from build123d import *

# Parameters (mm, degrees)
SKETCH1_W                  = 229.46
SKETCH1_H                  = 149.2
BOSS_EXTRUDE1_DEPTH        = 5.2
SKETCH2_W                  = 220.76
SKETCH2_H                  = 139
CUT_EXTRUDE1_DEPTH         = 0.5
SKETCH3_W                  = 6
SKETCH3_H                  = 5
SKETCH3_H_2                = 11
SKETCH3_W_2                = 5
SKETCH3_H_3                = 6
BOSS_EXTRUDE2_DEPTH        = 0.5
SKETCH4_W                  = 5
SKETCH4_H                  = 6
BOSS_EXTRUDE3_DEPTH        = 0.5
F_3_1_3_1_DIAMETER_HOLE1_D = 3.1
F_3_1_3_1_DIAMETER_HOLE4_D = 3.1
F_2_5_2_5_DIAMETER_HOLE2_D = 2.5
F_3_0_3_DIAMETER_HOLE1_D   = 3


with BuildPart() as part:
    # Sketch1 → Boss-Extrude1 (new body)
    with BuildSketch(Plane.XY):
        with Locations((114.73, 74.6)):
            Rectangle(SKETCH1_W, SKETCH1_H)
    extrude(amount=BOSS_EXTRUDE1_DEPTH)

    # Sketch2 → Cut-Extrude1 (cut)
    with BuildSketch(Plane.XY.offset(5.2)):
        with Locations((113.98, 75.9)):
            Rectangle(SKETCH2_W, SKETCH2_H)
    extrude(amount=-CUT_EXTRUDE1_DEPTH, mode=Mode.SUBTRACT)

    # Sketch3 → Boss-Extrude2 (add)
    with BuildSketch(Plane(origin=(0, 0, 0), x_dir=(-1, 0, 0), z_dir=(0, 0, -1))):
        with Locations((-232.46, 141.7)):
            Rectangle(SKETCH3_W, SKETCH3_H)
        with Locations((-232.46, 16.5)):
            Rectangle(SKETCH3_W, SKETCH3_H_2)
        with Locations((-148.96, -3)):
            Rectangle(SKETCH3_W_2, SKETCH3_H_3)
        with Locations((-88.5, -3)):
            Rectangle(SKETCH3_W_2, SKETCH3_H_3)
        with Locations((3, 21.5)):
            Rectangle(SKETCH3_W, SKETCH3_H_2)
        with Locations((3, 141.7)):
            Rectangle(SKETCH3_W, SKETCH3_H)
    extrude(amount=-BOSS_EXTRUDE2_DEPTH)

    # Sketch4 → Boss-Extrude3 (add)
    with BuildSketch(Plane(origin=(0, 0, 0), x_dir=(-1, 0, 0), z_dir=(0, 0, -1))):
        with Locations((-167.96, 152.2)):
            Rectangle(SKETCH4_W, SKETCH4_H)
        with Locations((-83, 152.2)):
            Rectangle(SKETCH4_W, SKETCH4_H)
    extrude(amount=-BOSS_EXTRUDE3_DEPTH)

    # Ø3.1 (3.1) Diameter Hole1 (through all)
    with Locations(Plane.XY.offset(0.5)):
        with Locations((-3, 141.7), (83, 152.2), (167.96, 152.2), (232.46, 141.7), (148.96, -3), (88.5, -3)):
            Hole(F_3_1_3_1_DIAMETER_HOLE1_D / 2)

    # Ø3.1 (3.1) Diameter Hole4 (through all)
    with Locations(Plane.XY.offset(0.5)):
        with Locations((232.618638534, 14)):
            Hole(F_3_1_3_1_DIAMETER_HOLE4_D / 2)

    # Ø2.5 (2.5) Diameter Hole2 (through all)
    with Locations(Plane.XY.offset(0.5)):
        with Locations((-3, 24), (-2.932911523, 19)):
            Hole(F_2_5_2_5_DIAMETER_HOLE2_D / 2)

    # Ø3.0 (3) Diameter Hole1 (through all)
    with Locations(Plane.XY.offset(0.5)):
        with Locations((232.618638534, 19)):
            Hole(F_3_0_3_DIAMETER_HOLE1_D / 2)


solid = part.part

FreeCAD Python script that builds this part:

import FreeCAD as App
import Part
import Sketcher
from FreeCAD import Vector

doc = App.newDocument("Part")
body = doc.addObject("PartDesign::Body", "Body")

# Sketch on XY plane
sketch1 = body.newObject("Sketcher::SketchObject", "Sketch")
sketch1.AttachmentSupport = (doc.getObject("XY_Plane"), [""])
sketch1.MapMode = "FlatFace"
sketch1.addGeometry([
    Part.LineSegment(Vector(0, 149, 0), Vector(0, 0, 0)),
    Part.LineSegment(Vector(0, 0, 0), Vector(229, 0, 0)),
    Part.LineSegment(Vector(229, 0, 0), Vector(229, 149, 0)),
    Part.LineSegment(Vector(229, 149, 0), Vector(0, 149, 0)),
], False)
sketch1.addConstraint([
    Sketcher.Constraint("Coincident", 0, 2, 1, 1),
    Sketcher.Constraint("Coincident", 1, 2, 2, 1),
    Sketcher.Constraint("Coincident", 2, 2, 3, 1),
    Sketcher.Constraint("Coincident", 3, 2, 0, 1),
    Sketcher.Constraint("Vertical", 0),
    Sketcher.Constraint("Horizontal", 1),
    Sketcher.Constraint("Vertical", 2),
    Sketcher.Constraint("Horizontal", 3),
    Sketcher.Constraint("Coincident", 0, 2, -1, 1),
    Sketcher.Constraint("DistanceY", 0, 2, 0, 1, 149.2),
    Sketcher.Constraint("DistanceX", 1, 1, 1, 2, 229.46),
])
pad1 = body.newObject("PartDesign::Pad", "Pad")
pad1.Profile = sketch1
pad1.Length = 5.2

# Sketch on XY plane
sketch2 = body.newObject("Sketcher::SketchObject", "Sketch001")
sketch2.AttachmentSupport = (doc.getObject("XY_Plane"), [""])
sketch2.MapMode = "FlatFace"
sketch2.AttachmentOffset = App.Placement(Vector(0, 0, 5.2), App.Rotation())
sketch2.addGeometry([
    Part.LineSegment(Vector(4, 145, 0), Vector(4, 6, 0)),
    Part.LineSegment(Vector(4, 6, 0), Vector(224, 6, 0)),
    Part.LineSegment(Vector(224, 6, 0), Vector(224, 145, 0)),
    Part.LineSegment(Vector(224, 145, 0), Vector(4, 145, 0)),
], False)
sketch2.addConstraint([
    Sketcher.Constraint("Coincident", 0, 2, 1, 1),
    Sketcher.Constraint("Coincident", 1, 2, 2, 1),
    Sketcher.Constraint("Coincident", 2, 2, 3, 1),
    Sketcher.Constraint("Coincident", 3, 2, 0, 1),
    Sketcher.Constraint("Vertical", 0),
    Sketcher.Constraint("Horizontal", 1),
    Sketcher.Constraint("Vertical", 2),
    Sketcher.Constraint("Horizontal", 3),
    Sketcher.Constraint("DistanceY", 0, 2, 0, 1, 139.0),
    Sketcher.Constraint("DistanceX", 1, 1, 1, 2, 220.76),
    Sketcher.Constraint("DistanceX", -1, 1, 0, 2, 3.6),
    Sketcher.Constraint("DistanceY", -1, 1, 0, 2, 6.4),
])
pocket1 = body.newObject("PartDesign::Pocket", "Pocket")
pocket1.Profile = sketch2
pocket1.Length = 0.5

# Sketch on XY plane
sketch3 = body.newObject("Sketcher::SketchObject", "Sketch002")
sketch3.AttachmentSupport = (doc.getObject("XY_Plane"), [""])
sketch3.MapMode = "FlatFace"
sketch3.addGeometry([
    Part.LineSegment(Vector(235, 144, 0), Vector(235, 139, 0)),  # 0
    Part.LineSegment(Vector(235, 139, 0), Vector(229, 139, 0)),  # 1
    Part.LineSegment(Vector(229, 139, 0), Vector(229, 144, 0)),  # 2
    Part.LineSegment(Vector(229, 144, 0), Vector(235, 144, 0)),  # 3
    Part.LineSegment(Vector(235, 22, 0), Vector(235, 11, 0)),  # 4
    Part.LineSegment(Vector(235, 11, 0), Vector(229, 11, 0)),  # 5
    Part.LineSegment(Vector(229, 11, 0), Vector(229, 22, 0)),  # 6
    Part.LineSegment(Vector(229, 22, 0), Vector(235, 22, 0)),  # 7
    Part.LineSegment(Vector(151, 0, 0), Vector(151, -6, 0)),  # 8
    Part.LineSegment(Vector(151, -6, 0), Vector(146, -6, 0)),  # 9
    Part.LineSegment(Vector(146, -6, 0), Vector(146, 0, 0)),  # 10
    Part.LineSegment(Vector(146, 0, 0), Vector(151, 0, 0)),  # 11
    Part.LineSegment(Vector(91, 0, 0), Vector(91, -6, 0)),  # 12
    Part.LineSegment(Vector(91, -6, 0), Vector(86, -6, 0)),  # 13
    Part.LineSegment(Vector(86, -6, 0), Vector(86, 0, 0)),  # 14
    Part.LineSegment(Vector(86, 0, 0), Vector(91, 0, 0)),  # 15
    Part.LineSegment(Vector(0, 27, 0), Vector(0, 16, 0)),  # 16
    Part.LineSegment(Vector(0, 16, 0), Vector(-6, 16, 0)),  # 17
    Part.LineSegment(Vector(-6, 16, 0), Vector(-6, 27, 0)),  # 18
    Part.LineSegment(Vector(-6, 27, 0), Vector(0, 27, 0)),  # 19
    Part.LineSegment(Vector(0, 144, 0), Vector(0, 139, 0)),  # 20
    Part.LineSegment(Vector(0, 139, 0), Vector(-6, 139, 0)),  # 21
    Part.LineSegment(Vector(-6, 139, 0), Vector(-6, 144, 0)),  # 22
    Part.LineSegment(Vector(-6, 144, 0), Vector(0, 144, 0)),  # 23
], False)
sketch3.addConstraint([
    Sketcher.Constraint("Coincident", 0, 2, 1, 1),
    Sketcher.Constraint("Coincident", 1, 2, 2, 1),
    Sketcher.Constraint("Coincident", 2, 2, 3, 1),
    Sketcher.Constraint("Coincident", 3, 2, 0, 1),
    Sketcher.Constraint("Coincident", 4, 2, 5, 1),
    Sketcher.Constraint("Coincident", 5, 2, 6, 1),
    Sketcher.Constraint("Coincident", 6, 2, 7, 1),
    Sketcher.Constraint("Coincident", 7, 2, 4, 1),
    Sketcher.Constraint("Coincident", 8, 2, 9, 1),
    Sketcher.Constraint("Coincident", 9, 2, 10, 1),
    Sketcher.Constraint("Coincident", 10, 2, 11, 1),
    Sketcher.Constraint("Coincident", 11, 2, 8, 1),
    Sketcher.Constraint("Coincident", 12, 2, 13, 1),
    Sketcher.Constraint("Coincident", 13, 2, 14, 1),
    Sketcher.Constraint("Coincident", 14, 2, 15, 1),
    Sketcher.Constraint("Coincident", 15, 2, 12, 1),
    Sketcher.Constraint("Coincident", 16, 2, 17, 1),
    Sketcher.Constraint("Coincident", 17, 2, 18, 1),
    Sketcher.Constraint("Coincident", 18, 2, 19, 1),
    Sketcher.Constraint("Coincident", 19, 2, 16, 1),
    Sketcher.Constraint("Coincident", 20, 2, 21, 1),
    Sketcher.Constraint("Coincident", 21, 2, 22, 1),
    Sketcher.Constraint("Coincident", 22, 2, 23, 1),
    Sketcher.Constraint("Coincident", 23, 2, 20, 1),
    Sketcher.Constraint("Vertical", 0),
    Sketcher.Constraint("Horizontal", 1),
    Sketcher.Constraint("Vertical", 2),
    Sketcher.Constraint("Horizontal", 3),
    Sketcher.Constraint("Vertical", 4),
    Sketcher.Constraint("Horizontal", 5),
    Sketcher.Constraint("Vertical", 6),
    Sketcher.Constraint("Horizontal", 7),
    Sketcher.Constraint("Vertical", 8),
    Sketcher.Constraint("Horizontal", 9),
    Sketcher.Constraint("Vertical", 10),
    Sketcher.Constraint("Horizontal", 11),
    Sketcher.Constraint("Vertical", 12),
    Sketcher.Constraint("Horizontal", 13),
    Sketcher.Constraint("Vertical", 14),
    Sketcher.Constraint("Horizontal", 15),
    Sketcher.Constraint("Vertical", 16),
    Sketcher.Constraint("Horizontal", 17),
    Sketcher.Constraint("Vertical", 18),
    Sketcher.Constraint("Horizontal", 19),
    Sketcher.Constraint("Vertical", 20),
    Sketcher.Constraint("Horizontal", 21),
    Sketcher.Constraint("Vertical", 22),
    Sketcher.Constraint("Horizontal", 23),
    Sketcher.Constraint("PointOnObject", 10, 2, -1),
    Sketcher.Constraint("PointOnObject", 14, 2, -1),
    Sketcher.Constraint("PointOnObject", 16, 2, -2),
    Sketcher.Constraint("PointOnObject", 20, 2, -2),
    Sketcher.Constraint("Horizontal", 9, 2, 12, 2),
    Sketcher.Constraint("Horizontal", 1, 2, 20, 2),
    Sketcher.Constraint("Horizontal", 3, 2, 22, 2),
    Sketcher.Constraint("Vertical", 3, 2, 4, 2),
    Sketcher.Constraint("Vertical", 2, 2, 5, 2),
    Sketcher.Constraint("Vertical", 18, 2, 21, 2),
    Sketcher.Constraint("Equal", 11, 13),
    Sketcher.Constraint("Equal", 7, 17),
    Sketcher.Constraint("Equal", 15, 0),
    Sketcher.Constraint("Equal", 23, 8),
    Sketcher.Constraint("Equal", 6, 16),
    Sketcher.Constraint("DistanceX", 1, 2, 1, 1, 6.0),
    Sketcher.Constraint("DistanceX", 9, 2, 9, 1, 5.0),
    Sketcher.Constraint("DistanceY", 4, 2, 4, 1, 11.0),
    Sketcher.Constraint("DistanceY", -1, 1, 4, 2, 11.0),
    Sketcher.Constraint("DistanceX", -1, 1, 12, 2, 91.0),
    Sketcher.Constraint("DistanceY", -1, 1, 16, 2, 16.0),
    Sketcher.Constraint("DistanceX", 8, 2, 5, 2, 78.0),
    Sketcher.Constraint("DistanceY", -1, 1, 0, 2, 139.2),
    Sketcher.Constraint("DistanceX", -1, 1, 0, 2, 235.46),
])
pad2 = body.newObject("PartDesign::Pad", "Pad001")
pad2.Profile = sketch3
pad2.Length = 0.5

# Sketch on XY plane
sketch4 = body.newObject("Sketcher::SketchObject", "Sketch003")
sketch4.AttachmentSupport = (doc.getObject("XY_Plane"), [""])
sketch4.MapMode = "FlatFace"
sketch4.addGeometry([
    Part.LineSegment(Vector(170, 155, 0), Vector(170, 149, 0)),  # 0
    Part.LineSegment(Vector(170, 149, 0), Vector(165, 149, 0)),  # 1
    Part.LineSegment(Vector(165, 149, 0), Vector(165, 155, 0)),  # 2
    Part.LineSegment(Vector(165, 155, 0), Vector(170, 155, 0)),  # 3
    Part.LineSegment(Vector(86, 155, 0), Vector(86, 149, 0)),  # 4
    Part.LineSegment(Vector(86, 149, 0), Vector(80, 149, 0)),  # 5
    Part.LineSegment(Vector(80, 149, 0), Vector(80, 155, 0)),  # 6
    Part.LineSegment(Vector(80, 155, 0), Vector(86, 155, 0)),  # 7
], False)
sketch4.addConstraint([
    Sketcher.Constraint("Coincident", 0, 2, 1, 1),
    Sketcher.Constraint("Coincident", 1, 2, 2, 1),
    Sketcher.Constraint("Coincident", 2, 2, 3, 1),
    Sketcher.Constraint("Coincident", 3, 2, 0, 1),
    Sketcher.Constraint("Coincident", 4, 2, 5, 1),
    Sketcher.Constraint("Coincident", 5, 2, 6, 1),
    Sketcher.Constraint("Coincident", 6, 2, 7, 1),
    Sketcher.Constraint("Coincident", 7, 2, 4, 1),
    Sketcher.Constraint("Vertical", 0),
    Sketcher.Constraint("Horizontal", 1),
    Sketcher.Constraint("Vertical", 2),
    Sketcher.Constraint("Horizontal", 3),
    Sketcher.Constraint("Vertical", 4),
    Sketcher.Constraint("Horizontal", 5),
    Sketcher.Constraint("Vertical", 6),
    Sketcher.Constraint("Horizontal", 7),
    Sketcher.Constraint("Horizontal", 1, 2, 4, 2),
    Sketcher.Constraint("Horizontal", 3, 2, 6, 2),
    Sketcher.Constraint("Equal", 3, 5),
    Sketcher.Constraint("DistanceX", 1, 2, 1, 1, 5.0),
    Sketcher.Constraint("DistanceY", 0, 2, 0, 1, 6.0),
    Sketcher.Constraint("DistanceY", -1, 1, 0, 2, 149.2),
    Sketcher.Constraint("DistanceX", -1, 1, 4, 2, 85.5),
    Sketcher.Constraint("DistanceX", -1, 1, 0, 2, 170.46),
])
pad3 = body.newObject("PartDesign::Pad", "Pad002")
pad3.Profile = sketch4
pad3.Length = 0.5

# Sketch on XY plane
sketch5 = body.newObject("Sketcher::SketchObject", "Sketch004")
sketch5.AttachmentSupport = (doc.getObject("XY_Plane"), [""])
sketch5.MapMode = "FlatFace"
sketch5.AttachmentOffset = App.Placement(Vector(0, 0, 0.5), App.Rotation())
sketch5.addGeometry([
    Part.Circle(Vector(-3, 141.7, 0), Vector(0, 0, 1), 1.6),  # 0
    Part.Circle(Vector(83, 152.2, 0), Vector(0, 0, 1), 1.6),  # 1
    Part.Circle(Vector(168, 152.2, 0), Vector(0, 0, 1), 1.6),  # 2
    Part.Circle(Vector(232.5, 141.7, 0), Vector(0, 0, 1), 1.6),  # 3
    Part.Circle(Vector(149, -3, 0), Vector(0, 0, 1), 1.6),  # 4
    Part.Circle(Vector(88.5, -3, 0), Vector(0, 0, 1), 1.6),  # 5
], False)
sketch5.addConstraint([
    Sketcher.Constraint("Equal", 0, 1),
    Sketcher.Constraint("Equal", 1, 2),
    Sketcher.Constraint("Equal", 2, 3),
    Sketcher.Constraint("Equal", 3, 4),
    Sketcher.Constraint("Equal", 4, 5),
    Sketcher.Constraint("Horizontal", 1, 3, 2, 3),
    Sketcher.Constraint("Horizontal", 0, 3, 3, 3),
    Sketcher.Constraint("Horizontal", 4, 3, 5, 3),
    Sketcher.Constraint("Diameter", 0, 3.1),
    Sketcher.Constraint("DistanceX", 0, 3, -1, 1, 3.0),
    Sketcher.Constraint("DistanceX", -1, 1, 1, 3, 83.0),
    Sketcher.Constraint("DistanceY", 4, 3, -1, 1, 3.0),
    Sketcher.Constraint("DistanceX", 4, 3, 2, 3, 19.0),
    Sketcher.Constraint("DistanceY", -1, 1, 0, 3, 141.7),
    Sketcher.Constraint("DistanceY", -1, 1, 1, 3, 152.2),
    Sketcher.Constraint("DistanceX", -1, 1, 5, 3, 88.5),
    Sketcher.Constraint("DistanceX", 2, 3, 3, 3, 64.5),
    Sketcher.Constraint("DistanceX", -1, 1, 2, 3, 167.96),
])
doc.recompute()
hole = body.newObject("PartDesign::Hole", "Hole")
hole.Profile = sketch5
hole.ThreadType = "None"
hole.Diameter = 3.1
hole.DepthType = "ThroughAll"

# Sketch on XY plane
sketch6 = body.newObject("Sketcher::SketchObject", "Sketch005")
sketch6.AttachmentSupport = (doc.getObject("XY_Plane"), [""])
sketch6.MapMode = "FlatFace"
sketch6.AttachmentOffset = App.Placement(Vector(0, 0, 0.5), App.Rotation())
sketch6.addGeometry(Part.Circle(Vector(232.6, 14, 0), Vector(0, 0, 1), 1.6), False)
sketch6.addConstraint([
    Sketcher.Constraint("Diameter", 0, 3.1),
    Sketcher.Constraint("DistanceY", -1, 1, 0, 3, 14.0),
    Sketcher.Constraint("DistanceX", -1, 1, 0, 3, 232.618639),
])
doc.recompute()
hole2 = body.newObject("PartDesign::Hole", "Hole001")
hole2.Profile = sketch6
hole2.ThreadType = "None"
hole2.Diameter = 3.1
hole2.DepthType = "ThroughAll"

# Sketch on XY plane
sketch7 = body.newObject("Sketcher::SketchObject", "Sketch006")
sketch7.AttachmentSupport = (doc.getObject("XY_Plane"), [""])
sketch7.MapMode = "FlatFace"
sketch7.AttachmentOffset = App.Placement(Vector(0, 0, 0.5), App.Rotation())
sketch7.addGeometry([
    Part.Circle(Vector(-3, 24, 0), Vector(0, 0, 1), 1.2),
    Part.Circle(Vector(-2.9, 19, 0), Vector(0, 0, 1), 1.2),
], False)
sketch7.addConstraint([
    Sketcher.Constraint("Equal", 0, 1),
    Sketcher.Constraint("Diameter", 0, 2.5),
    Sketcher.Constraint("DistanceX", 0, 3, -1, 1, 3.0),
    Sketcher.Constraint("DistanceY", -1, 1, 0, 3, 24.0),
    Sketcher.Constraint("DistanceY", -1, 1, 1, 3, 19.0),
    Sketcher.Constraint("DistanceX", 1, 3, -1, 1, 2.932912),
])
doc.recompute()
hole3 = body.newObject("PartDesign::Hole", "Hole002")
hole3.Profile = sketch7
hole3.ThreadType = "None"
hole3.Diameter = 2.5
hole3.DepthType = "ThroughAll"

# Sketch on XY plane
sketch8 = body.newObject("Sketcher::SketchObject", "Sketch007")
sketch8.AttachmentSupport = (doc.getObject("XY_Plane"), [""])
sketch8.MapMode = "FlatFace"
sketch8.AttachmentOffset = App.Placement(Vector(0, 0, 0.5), App.Rotation())
sketch8.addGeometry(Part.Circle(Vector(232.6, 19, 0), Vector(0, 0, 1), 1.5), False)
sketch8.addConstraint([
    Sketcher.Constraint("Diameter", 0, 3.0),
    Sketcher.Constraint("DistanceY", -1, 1, 0, 3, 19.0),
    Sketcher.Constraint("DistanceX", -1, 1, 0, 3, 232.618639),
])
doc.recompute()
hole4 = body.newObject("PartDesign::Hole", "Hole003")
hole4.Profile = sketch8
hole4.ThreadType = "None"
hole4.Diameter = 3
hole4.DepthType = "ThroughAll"

doc.recompute()
